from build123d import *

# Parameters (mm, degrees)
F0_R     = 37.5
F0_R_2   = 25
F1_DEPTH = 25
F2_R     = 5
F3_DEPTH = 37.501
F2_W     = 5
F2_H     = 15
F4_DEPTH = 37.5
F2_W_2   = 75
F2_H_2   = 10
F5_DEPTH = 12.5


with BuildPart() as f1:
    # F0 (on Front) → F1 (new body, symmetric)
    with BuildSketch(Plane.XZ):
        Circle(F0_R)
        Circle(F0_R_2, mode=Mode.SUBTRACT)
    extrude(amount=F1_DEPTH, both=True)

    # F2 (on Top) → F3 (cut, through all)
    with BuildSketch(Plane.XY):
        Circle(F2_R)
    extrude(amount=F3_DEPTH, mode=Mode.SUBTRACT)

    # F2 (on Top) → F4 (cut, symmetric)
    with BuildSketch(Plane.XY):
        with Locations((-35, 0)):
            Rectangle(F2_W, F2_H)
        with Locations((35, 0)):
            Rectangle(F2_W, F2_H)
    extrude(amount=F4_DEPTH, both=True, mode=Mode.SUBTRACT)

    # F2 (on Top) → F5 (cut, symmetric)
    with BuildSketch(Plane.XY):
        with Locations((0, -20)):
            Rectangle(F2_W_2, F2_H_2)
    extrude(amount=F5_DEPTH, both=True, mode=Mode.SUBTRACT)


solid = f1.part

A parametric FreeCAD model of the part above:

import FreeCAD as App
import Part
import Sketcher
from FreeCAD import Vector


def add_polygon(sketch, points):
    """Adds a closed chain of lines whose ends are joined by coincident constraints."""
    first, n = sketch.GeometryCount, len(points)
    for a, b in zip(points, points[1:] + points[:1]):
        sketch.addGeometry(Part.LineSegment(App.Vector(*a, 0), App.Vector(*b, 0)), False)
    for i in range(n):
        sketch.addConstraint(Sketcher.Constraint("Coincident", first + i, 2, first + (i + 1) % n, 1))

doc = App.newDocument("Part")
body = doc.addObject("PartDesign::Body", "Body")

# Sketch on XZ plane
sketch1 = body.newObject("Sketcher::SketchObject", "Sketch")
sketch1.AttachmentSupport = (doc.getObject("XZ_Plane"), [""])
sketch1.MapMode = "FlatFace"
sketch1.addGeometry([
    Part.Circle(Vector(0, 0, 0), Vector(0, 0, 1), 38),
    Part.Circle(Vector(0, 0, 0), Vector(0, 0, 1), 25),
], False)
sketch1.addConstraint([
    Sketcher.Constraint("Coincident", 0, 3, -1, 1),
    Sketcher.Constraint("Coincident", 1, 3, -1, 1),
    Sketcher.Constraint("Diameter", 0, 75.0),
    Sketcher.Constraint("Diameter", 1, 50.0),
])
pad1 = body.newObject("PartDesign::Pad", "Pad")
pad1.Profile = sketch1
pad1.Length = 50
pad1.Midplane = True

# Sketch on XY plane
sketch2 = body.newObject("Sketcher::SketchObject", "Sketch001")
sketch2.AttachmentSupport = (doc.getObject("XY_Plane"), [""])
sketch2.MapMode = "FlatFace"
sketch2.addGeometry(Part.Circle(Vector(0, 0, 0), Vector(0, 0, 1), 5), False)
sketch2.addConstraint([
    Sketcher.Constraint("Coincident", 0, 3, -1, 1),
    Sketcher.Constraint("Diameter", 0, 10.0),
])
pocket1 = body.newObject("PartDesign::Pocket", "Pocket")
pocket1.Profile = sketch2
pocket1.Type = "ThroughAll"
pocket1.Reversed = True

# Sketch on XY plane
sketch3 = body.newObject("Sketcher::SketchObject", "Sketch002")
sketch3.AttachmentSupport = (doc.getObject("XY_Plane"), [""])
sketch3.MapMode = "FlatFace"
add_polygon(sketch3, [(-38, 8), (-38, -8), (-32, -8), (-32, 8)])  # lines 0-3
add_polygon(sketch3, [(32, 8), (32, -8), (38, -8), (38, 8)])  # lines 4-7
sketch3.addConstraint([
    Sketcher.Constraint("Vertical", 0),
    Sketcher.Constraint("Horizontal", 1),
    Sketcher.Constraint("Vertical", 2),
    Sketcher.Constraint("Horizontal", 3),
    Sketcher.Constraint("Vertical", 4),
    Sketcher.Constraint("Horizontal", 5),
    Sketcher.Constraint("Vertical", 6),
    Sketcher.Constraint("Horizontal", 7),
    Sketcher.Constraint("Symmetric", 2, 2, 4, 2, -1, 1),
    Sketcher.Constraint("Symmetric", 0, 2, 6, 2, -1, 1),
    Sketcher.Constraint("Horizontal", 1, 2, 4, 2),
    Sketcher.Constraint("DistanceX", 1, 1, 1, 2, 5.0),
    Sketcher.Constraint("DistanceY", 0, 2, 0, 1, 15.0),
    Sketcher.Constraint("DistanceX", 1, 2, 4, 2, 65.0),
])
pocket2 = body.newObject("PartDesign::Pocket", "Pocket001")
pocket2.Profile = sketch3
pocket2.Length = 75
pocket2.Midplane = True

# Sketch on XY plane
sketch4 = body.newObject("Sketcher::SketchObject", "Sketch003")
sketch4.AttachmentSupport = (doc.getObject("XY_Plane"), [""])
sketch4.MapMode = "FlatFace"
add_polygon(sketch4, [(-38, -15), (-38, -25), (38, -25), (38, -15)])  # lines 0-3
sketch4.addConstraint([
    Sketcher.Constraint("Vertical", 0),
    Sketcher.Constraint("Horizontal", 1),
    Sketcher.Constraint("Vertical", 2),
    Sketcher.Constraint("Horizontal", 3),
    Sketcher.Constraint("DistanceX", 1, 1, 1, 2, 75.0),
    Sketcher.Constraint("DistanceY", 0, 2, 0, 1, 10.0),
    Sketcher.Constraint("DistanceY", 0, 2, -1, 1, 25.0),
    Sketcher.Constraint("DistanceX", 0, 2, -1, 1, 37.5),
])
pocket3 = body.newObject("PartDesign::Pocket", "Pocket002")
pocket3.Profile = sketch4
pocket3.Length = 25
pocket3.Midplane = True

doc.recompute()
